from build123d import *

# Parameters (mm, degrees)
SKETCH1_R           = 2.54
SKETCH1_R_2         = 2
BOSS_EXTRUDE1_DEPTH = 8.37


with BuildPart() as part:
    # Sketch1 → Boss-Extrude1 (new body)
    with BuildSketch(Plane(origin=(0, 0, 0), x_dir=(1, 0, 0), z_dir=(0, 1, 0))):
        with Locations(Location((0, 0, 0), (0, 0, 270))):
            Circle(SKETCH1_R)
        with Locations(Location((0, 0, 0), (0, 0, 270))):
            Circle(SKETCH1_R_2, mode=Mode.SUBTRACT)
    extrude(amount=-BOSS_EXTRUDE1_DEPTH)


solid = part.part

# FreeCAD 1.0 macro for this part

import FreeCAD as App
import Part
import Sketcher

doc = App.newDocument("Part")
body = doc.addObject("PartDesign::Body", "Body")

# Sketch on XZ plane
sketch1 = body.newObject("Sketcher::SketchObject", "Sketch")
sketch1.AttachmentSupport = (doc.getObject("XZ_Plane"), [""])
sketch1.MapMode = "FlatFace"
sketch1.addGeometry([
    Part.Circle(App.Vector(0, 0, 0), App.Vector(0, 0, 1), 2.5),
    Part.Circle(App.Vector(0, 0, 0), App.Vector(0, 0, 1), 2),
], False)
sketch1.addConstraint([
    Sketcher.Constraint("Coincident", 0, 3, -1, 1),
    Sketcher.Constraint("Coincident", 1, 3, -1, 1),
    Sketcher.Constraint("Diameter", 1, 4.0),
    Sketcher.Constraint("Diameter", 0, 5.08),
])
pad1 = body.newObject("PartDesign::Pad", "Pad")
pad1.Profile = sketch1
pad1.Length = 8.37

doc.recompute()
